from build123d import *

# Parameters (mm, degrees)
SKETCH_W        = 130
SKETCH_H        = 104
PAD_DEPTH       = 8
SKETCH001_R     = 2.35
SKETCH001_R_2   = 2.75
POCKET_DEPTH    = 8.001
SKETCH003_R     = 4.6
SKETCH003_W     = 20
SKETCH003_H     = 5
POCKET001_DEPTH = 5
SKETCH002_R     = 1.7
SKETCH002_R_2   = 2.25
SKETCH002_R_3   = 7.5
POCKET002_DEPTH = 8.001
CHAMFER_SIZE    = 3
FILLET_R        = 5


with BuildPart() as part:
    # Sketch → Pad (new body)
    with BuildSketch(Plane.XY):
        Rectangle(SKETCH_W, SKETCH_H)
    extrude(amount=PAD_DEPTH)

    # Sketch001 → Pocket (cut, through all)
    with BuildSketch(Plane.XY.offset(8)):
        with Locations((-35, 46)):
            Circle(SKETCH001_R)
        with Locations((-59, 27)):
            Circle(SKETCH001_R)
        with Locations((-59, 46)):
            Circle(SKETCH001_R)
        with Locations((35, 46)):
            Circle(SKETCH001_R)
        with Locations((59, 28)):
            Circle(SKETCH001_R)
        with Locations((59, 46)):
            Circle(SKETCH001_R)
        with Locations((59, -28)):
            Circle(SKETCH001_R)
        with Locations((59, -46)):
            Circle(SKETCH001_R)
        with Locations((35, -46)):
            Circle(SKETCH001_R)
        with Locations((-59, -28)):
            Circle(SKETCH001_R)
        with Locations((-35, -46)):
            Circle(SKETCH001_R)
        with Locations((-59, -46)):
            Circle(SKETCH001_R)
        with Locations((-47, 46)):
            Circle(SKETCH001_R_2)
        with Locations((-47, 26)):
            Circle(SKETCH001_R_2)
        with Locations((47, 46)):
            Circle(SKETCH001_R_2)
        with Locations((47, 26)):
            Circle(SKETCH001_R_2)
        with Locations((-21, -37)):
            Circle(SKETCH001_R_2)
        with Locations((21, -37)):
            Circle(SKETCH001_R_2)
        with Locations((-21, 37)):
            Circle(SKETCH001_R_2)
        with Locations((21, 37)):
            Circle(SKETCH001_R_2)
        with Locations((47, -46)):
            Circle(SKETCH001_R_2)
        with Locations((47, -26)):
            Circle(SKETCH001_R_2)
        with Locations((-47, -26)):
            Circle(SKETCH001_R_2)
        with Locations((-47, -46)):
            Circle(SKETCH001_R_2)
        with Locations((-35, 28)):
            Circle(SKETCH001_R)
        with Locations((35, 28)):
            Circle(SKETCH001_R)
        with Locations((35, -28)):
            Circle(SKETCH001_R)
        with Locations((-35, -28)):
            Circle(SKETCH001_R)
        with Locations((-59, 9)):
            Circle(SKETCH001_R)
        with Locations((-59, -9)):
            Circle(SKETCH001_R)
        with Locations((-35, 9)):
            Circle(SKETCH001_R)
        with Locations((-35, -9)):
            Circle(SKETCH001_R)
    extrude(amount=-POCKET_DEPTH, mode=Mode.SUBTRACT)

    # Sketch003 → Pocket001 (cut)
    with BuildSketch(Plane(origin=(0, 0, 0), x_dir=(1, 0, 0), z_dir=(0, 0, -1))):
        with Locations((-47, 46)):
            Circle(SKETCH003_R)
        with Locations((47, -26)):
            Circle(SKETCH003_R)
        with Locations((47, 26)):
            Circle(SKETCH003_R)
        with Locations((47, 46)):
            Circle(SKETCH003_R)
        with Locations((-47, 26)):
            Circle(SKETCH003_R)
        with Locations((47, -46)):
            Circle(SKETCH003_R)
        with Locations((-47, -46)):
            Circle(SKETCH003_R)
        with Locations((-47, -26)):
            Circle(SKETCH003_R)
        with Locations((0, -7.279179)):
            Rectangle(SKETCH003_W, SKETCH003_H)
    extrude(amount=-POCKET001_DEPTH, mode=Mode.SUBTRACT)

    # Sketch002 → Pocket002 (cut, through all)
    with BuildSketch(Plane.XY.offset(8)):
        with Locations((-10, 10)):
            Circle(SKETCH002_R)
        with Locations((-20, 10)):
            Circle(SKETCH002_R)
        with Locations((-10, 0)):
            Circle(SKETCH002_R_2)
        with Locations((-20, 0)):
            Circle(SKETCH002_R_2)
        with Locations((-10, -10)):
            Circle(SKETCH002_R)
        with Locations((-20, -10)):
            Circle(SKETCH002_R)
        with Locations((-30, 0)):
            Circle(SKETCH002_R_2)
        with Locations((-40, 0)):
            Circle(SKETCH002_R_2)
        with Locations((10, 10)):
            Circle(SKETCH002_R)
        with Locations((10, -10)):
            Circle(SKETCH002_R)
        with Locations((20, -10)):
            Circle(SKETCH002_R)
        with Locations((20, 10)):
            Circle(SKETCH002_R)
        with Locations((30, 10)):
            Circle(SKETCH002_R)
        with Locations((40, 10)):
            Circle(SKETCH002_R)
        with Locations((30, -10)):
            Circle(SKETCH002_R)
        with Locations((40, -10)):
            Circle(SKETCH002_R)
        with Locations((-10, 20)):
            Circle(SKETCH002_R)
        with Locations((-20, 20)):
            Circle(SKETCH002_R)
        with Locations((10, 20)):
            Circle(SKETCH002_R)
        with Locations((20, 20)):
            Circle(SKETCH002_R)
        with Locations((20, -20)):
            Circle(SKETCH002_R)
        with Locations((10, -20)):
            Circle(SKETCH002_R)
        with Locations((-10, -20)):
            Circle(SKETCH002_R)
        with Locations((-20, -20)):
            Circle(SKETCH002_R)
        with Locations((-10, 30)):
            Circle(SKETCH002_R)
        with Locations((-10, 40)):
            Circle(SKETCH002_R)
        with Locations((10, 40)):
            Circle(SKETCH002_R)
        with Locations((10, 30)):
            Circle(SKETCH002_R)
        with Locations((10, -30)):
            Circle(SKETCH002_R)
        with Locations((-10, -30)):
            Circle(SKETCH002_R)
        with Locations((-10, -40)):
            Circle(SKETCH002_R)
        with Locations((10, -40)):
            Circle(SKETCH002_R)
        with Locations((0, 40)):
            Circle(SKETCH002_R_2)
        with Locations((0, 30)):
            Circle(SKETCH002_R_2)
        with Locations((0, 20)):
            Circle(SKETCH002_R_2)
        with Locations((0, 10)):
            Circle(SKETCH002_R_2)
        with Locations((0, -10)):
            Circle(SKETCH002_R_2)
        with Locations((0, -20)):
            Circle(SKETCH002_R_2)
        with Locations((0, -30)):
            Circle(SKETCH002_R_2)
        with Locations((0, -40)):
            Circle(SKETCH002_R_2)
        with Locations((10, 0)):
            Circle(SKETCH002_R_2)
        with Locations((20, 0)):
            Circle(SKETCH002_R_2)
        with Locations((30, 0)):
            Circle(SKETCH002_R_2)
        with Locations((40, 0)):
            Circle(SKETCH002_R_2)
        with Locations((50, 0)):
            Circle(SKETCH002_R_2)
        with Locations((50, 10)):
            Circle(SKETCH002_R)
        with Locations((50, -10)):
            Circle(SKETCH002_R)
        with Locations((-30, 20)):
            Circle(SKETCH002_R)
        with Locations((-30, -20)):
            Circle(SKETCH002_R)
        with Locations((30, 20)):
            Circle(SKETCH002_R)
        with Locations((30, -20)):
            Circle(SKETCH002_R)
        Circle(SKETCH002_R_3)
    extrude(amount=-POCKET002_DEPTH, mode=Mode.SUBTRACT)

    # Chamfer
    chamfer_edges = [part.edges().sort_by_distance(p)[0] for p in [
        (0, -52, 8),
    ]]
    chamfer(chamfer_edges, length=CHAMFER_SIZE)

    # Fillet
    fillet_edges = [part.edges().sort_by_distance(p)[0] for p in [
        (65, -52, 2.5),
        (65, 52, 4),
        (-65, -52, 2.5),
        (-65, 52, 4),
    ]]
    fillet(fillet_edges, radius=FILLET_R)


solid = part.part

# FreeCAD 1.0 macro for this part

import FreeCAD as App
import Part
import Sketcher
from FreeCAD import Vector


def edges_at(feature, points):
    """Names of the edges that pass closest to the given points."""
    edges = feature.Shape.Edges
    near = lambda p: min(range(len(edges)), key=lambda i: edges[i].distToShape(Part.Vertex(*p))[0])
    return sorted({f"Edge{near(p) + 1}" for p in points})


def add_polygon(sketch, points):
    """Adds a closed chain of lines whose ends are joined by coincident constraints."""
    first, n = sketch.GeometryCount, len(points)
    for a, b in zip(points, points[1:] + points[:1]):
        sketch.addGeometry(Part.LineSegment(App.Vector(*a, 0), App.Vector(*b, 0)), False)
    for i in range(n):
        sketch.addConstraint(Sketcher.Constraint("Coincident", first + i, 2, first + (i + 1) % n, 1))

doc = App.newDocument("Part")
params = doc.addObject("Spreadsheet::Sheet", "Params")
for row, (alias, value) in enumerate([
    ("sketch1_width", "130 mm"),
    ("sketch1_height", "104 mm"),
    ("pad1_length", "8 mm"),
    ("sketch2_diameter", "4.7 mm"),
    ("sketch2_diameter2", "5.5 mm"),
    ("sketch3_diameter", "9.2 mm"),
    ("sketch3_width", "20 mm"),
    ("sketch3_height", "5 mm"),
    ("pocket2_length", "5 mm"),
    ("sketch4_diameter", "15 mm"),
    ("sketch4_diameter2", "3.4 mm"),
    ("sketch4_diameter3", "4.5 mm"),
    ("chamfer_size", "3 mm"),
    ("fillet_radius", "5 mm"),
], start=1):
    params.set(f"A{row}", alias)
    params.set(f"B{row}", "=" + value)
    params.setAlias(f"B{row}", alias)

body = doc.addObject("PartDesign::Body", "Body")

sketch1 = body.newObject("Sketcher::SketchObject", "Sketch")
sketch1.AttachmentSupport = (doc.getObject("XY_Plane"), [""])
sketch1.MapMode = "FlatFace"
add_polygon(sketch1, [(-65, 52), (-65, -52), (65, -52), (65, 52)])
sketch1.addConstraint([
    Sketcher.Constraint("Vertical", 0),
    Sketcher.Constraint("Horizontal", 1),
    Sketcher.Constraint("Vertical", 2),
    Sketcher.Constraint("Horizontal", 3),
    Sketcher.Constraint("Symmetric", 0, 2, 2, 2, -1, 1),
    Sketcher.Constraint("DistanceX", 1, 1, 1, 2, 130.0),
    Sketcher.Constraint("DistanceY", 0, 2, 0, 1, 104.0),
])
sketch1.setExpression("Constraints[9]", "Params.sketch1_width")
sketch1.setExpression("Constraints[10]", "Params.sketch1_height")
pad1 = body.newObject("PartDesign::Pad", "Pad")
pad1.Profile = sketch1
pad1.setExpression("Length", "Params.pad1_length")

sketch2 = body.newObject("Sketcher::SketchObject", "Sketch001")
sketch2.AttachmentSupport = (doc.getObject("XY_Plane"), [""])
sketch2.MapMode = "FlatFace"
sketch2.AttachmentOffset = App.Placement(Vector(0, 0, 8), App.Rotation())
sketch2.addGeometry([
    Part.Circle(Vector(-35, 46, 0), Vector(0, 0, 1), 2.4),
    Part.Circle(Vector(-59, 27, 0), Vector(0, 0, 1), 2.4),
    Part.Circle(Vector(-59, 46, 0), Vector(0, 0, 1), 2.4),
    Part.Circle(Vector(35, 46, 0), Vector(0, 0, 1), 2.4),
    Part.Circle(Vector(59, 28, 0), Vector(0, 0, 1), 2.4),
    Part.Circle(Vector(59, 46, 0), Vector(0, 0, 1), 2.4),
    Part.Circle(Vector(59, -28, 0), Vector(0, 0, 1), 2.4),
    Part.Circle(Vector(59, -46, 0), Vector(0, 0, 1), 2.4),
    Part.Circle(Vector(35, -46, 0), Vector(0, 0, 1), 2.4),
    Part.Circle(Vector(-59, -28, 0), Vector(0, 0, 1), 2.4),
    Part.Circle(Vector(-35, -46, 0), Vector(0, 0, 1), 2.4),
    Part.Circle(Vector(-59, -46, 0), Vector(0, 0, 1), 2.4),
    Part.Circle(Vector(-47, 46, 0), Vector(0, 0, 1), 2.8),
    Part.Circle(Vector(-47, 26, 0), Vector(0, 0, 1), 2.8),
    Part.Circle(Vector(47, 46, 0), Vector(0, 0, 1), 2.8),
    Part.Circle(Vector(47, 26, 0), Vector(0, 0, 1), 2.8),
    Part.Circle(Vector(-21, -37, 0), Vector(0, 0, 1), 2.8),
    Part.Circle(Vector(21, -37, 0), Vector(0, 0, 1), 2.8),
    Part.Circle(Vector(-21, 37, 0), Vector(0, 0, 1), 2.8),
    Part.Circle(Vector(21, 37, 0), Vector(0, 0, 1), 2.8),
    Part.Circle(Vector(47, -46, 0), Vector(0, 0, 1), 2.8),
    Part.Circle(Vector(47, -26, 0), Vector(0, 0, 1), 2.8),
    Part.Circle(Vector(-47, -26, 0), Vector(0, 0, 1), 2.8),
    Part.Circle(Vector(-47, -46, 0), Vector(0, 0, 1), 2.8),
    Part.Circle(Vector(-35, 28, 0), Vector(0, 0, 1), 2.4),
    Part.Circle(Vector(35, 28, 0), Vector(0, 0, 1), 2.4),
    Part.Circle(Vector(35, -28, 0), Vector(0, 0, 1), 2.4),
    Part.Circle(Vector(-35, -28, 0), Vector(0, 0, 1), 2.4),
    Part.Circle(Vector(-59, 9, 0), Vector(0, 0, 1), 2.4),
    Part.Circle(Vector(-59, -9, 0), Vector(0, 0, 1), 2.4),
    Part.Circle(Vector(-35, 9, 0), Vector(0, 0, 1), 2.4),
    Part.Circle(Vector(-35, -9, 0), Vector(0, 0, 1), 2.4),
], False)
sketch2.addConstraint([
    Sketcher.Constraint("Equal", 0, 1),
    Sketcher.Constraint("Equal", 1, 2),
    Sketcher.Constraint("Equal", 2, 3),
    Sketcher.Constraint("Equal", 3, 4),
    Sketcher.Constraint("Equal", 4, 5),
    Sketcher.Constraint("Equal", 5, 6),
    Sketcher.Constraint("Equal", 6, 7),
    Sketcher.Constraint("Equal", 7, 8),
    Sketcher.Constraint("Equal", 8, 9),
    Sketcher.Constraint("Equal", 9, 10),
    Sketcher.Constraint("Equal", 10, 11),
    Sketcher.Constraint("Equal", 12, 13),
    Sketcher.Constraint("Equal", 13, 14),
    Sketcher.Constraint("Equal", 14, 15),
    Sketcher.Constraint("Equal", 15, 16),
    Sketcher.Constraint("Equal", 16, 17),
    Sketcher.Constraint("Equal", 17, 18),
    Sketcher.Constraint("Equal", 18, 19),
    Sketcher.Constraint("Equal", 19, 20),
    Sketcher.Constraint("Equal", 20, 21),
    Sketcher.Constraint("Equal", 21, 22),
    Sketcher.Constraint("Equal", 22, 23),
    Sketcher.Constraint("Equal", 11, 24),
    Sketcher.Constraint("Equal", 24, 25),
    Sketcher.Constraint("Equal", 25, 26),
    Sketcher.Constraint("Equal", 26, 27),
    Sketcher.Constraint("Equal", 27, 28),
    Sketcher.Constraint("Equal", 28, 29),
    Sketcher.Constraint("Equal", 29, 30),
    Sketcher.Constraint("Equal", 30, 31),
    Sketcher.Constraint("Symmetric", 2, 3, 7, 3, -1, 1),
    Sketcher.Constraint("Symmetric", 0, 3, 8, 3, -1, 1),
    Sketcher.Constraint("Symmetric", 4, 3, 9, 3, -1, 1),
    Sketcher.Constraint("Symmetric", 3, 3, 10, 3, -1, 1),
    Sketcher.Constraint("Symmetric", 5, 3, 11, 3, -1, 1),
    Sketcher.Constraint("Symmetric", 17, 3, 18, 3, -1, 1),
    Sketcher.Constraint("Symmetric", 16, 3, 19, 3, -1, 1),
    Sketcher.Constraint("Symmetric", 12, 3, 20, 3, -1, 1),
    Sketcher.Constraint("Symmetric", 13, 3, 21, 3, -1, 1),
    Sketcher.Constraint("Symmetric", 15, 3, 22, 3, -1, 1),
    Sketcher.Constraint("Symmetric", 14, 3, 23, 3, -1, 1),
    Sketcher.Constraint("Symmetric", 24, 3, 26, 3, -1, 1),
    Sketcher.Constraint("Symmetric", 25, 3, 27, 3, -1, 1),
    Sketcher.Constraint("Symmetric", 0, 3, 3, 3, -2),
    Sketcher.Constraint("Symmetric", 2, 3, 5, 3, -2),
    Sketcher.Constraint("Symmetric", 6, 3, 9, 3, -2),
    Sketcher.Constraint("Symmetric", 12, 3, 14, 3, -2),
    Sketcher.Constraint("Symmetric", 13, 3, 15, 3, -2),
    Sketcher.Constraint("Symmetric", 16, 3, 17, 3, -2),
    Sketcher.Constraint("Symmetric", 24, 3, 25, 3, -2),
    Sketcher.Constraint("Symmetric", 28, 3, 29, 3, -1),
    Sketcher.Constraint("Symmetric", 30, 3, 31, 3, -1),
    Sketcher.Constraint("Horizontal", 0, 3, 2, 3),
    Sketcher.Constraint("Horizontal", 5, 3, 12, 3),
    Sketcher.Constraint("Horizontal", 4, 3, 24, 3),
    Sketcher.Constraint("Horizontal", 28, 3, 30, 3),
    Sketcher.Constraint("Vertical", 1, 3, 2, 3),
    Sketcher.Constraint("Vertical", 4, 3, 5, 3),
    Sketcher.Constraint("Vertical", 12, 3, 13, 3),
    Sketcher.Constraint("Vertical", 10, 3, 24, 3),
    Sketcher.Constraint("Vertical", 11, 3, 28, 3),
    Sketcher.Constraint("Vertical", 27, 3, 30, 3),
    Sketcher.Constraint("Diameter", 0, 4.7),
    Sketcher.Constraint("Diameter", 12, 5.5),
    Sketcher.Constraint("DistanceX", 0, 3, -1, 1, 35.0),
    Sketcher.Constraint("DistanceY", -1, 1, 0, 3, 46.0),
    Sketcher.Constraint("DistanceX", 1, 3, -1, 1, 59.0),
    Sketcher.Constraint("DistanceY", -1, 1, 1, 3, 27.0),
    Sketcher.Constraint("DistanceY", -1, 1, 4, 3, 28.0),
    Sketcher.Constraint("DistanceX", 12, 3, -1, 1, 47.0),
    Sketcher.Constraint("DistanceY", -1, 1, 13, 3, 26.0),
    Sketcher.Constraint("DistanceX", 16, 3, -1, 1, 21.0),
    Sketcher.Constraint("DistanceY", 16, 3, -1, 1, 37.0),
    Sketcher.Constraint("DistanceY", -1, 1, 28, 3, 9.0),
])
sketch2.setExpression("Constraints[62]", "Params.sketch2_diameter")
sketch2.setExpression("Constraints[63]", "Params.sketch2_diameter2")
pocket1 = body.newObject("PartDesign::Pocket", "Pocket")
pocket1.Profile = sketch2
pocket1.Type = "ThroughAll"

sketch3 = body.newObject("Sketcher::SketchObject", "Sketch002")
sketch3.AttachmentSupport = (doc.getObject("XY_Plane"), [""])
sketch3.MapMode = "FlatFace"
sketch3.addGeometry(Part.Circle(Vector(-47, -46, 0), Vector(0, 0, 1), 4.6), False)
sketch3.addGeometry(Part.Circle(Vector(47, 26, 0), Vector(0, 0, 1), 4.6), False)
sketch3.addGeometry(Part.Circle(Vector(47, -26, 0), Vector(0, 0, 1), 4.6), False)
sketch3.addGeometry(Part.Circle(Vector(47, -46, 0), Vector(0, 0, 1), 4.6), False)
sketch3.addGeometry(Part.Circle(Vector(-47, -26, 0), Vector(0, 0, 1), 4.6), False)
sketch3.addGeometry(Part.Circle(Vector(47, 46, 0), Vector(0, 0, 1), 4.6), False)
sketch3.addGeometry(Part.Circle(Vector(-47, 46, 0), Vector(0, 0, 1), 4.6), False)
sketch3.addGeometry(Part.Circle(Vector(-47, 26, 0), Vector(0, 0, 1), 4.6), False)
add_polygon(sketch3, [(-10, 4.8), (-10, 9.8), (10, 9.8), (10, 4.8)])
sketch3.addConstraint([
    Sketcher.Constraint("Vertical", 8),
    Sketcher.Constraint("Horizontal", 9),
    Sketcher.Constraint("Vertical", 10),
    Sketcher.Constraint("Horizontal", 11),
    Sketcher.Constraint("Equal", 0, 1),
    Sketcher.Constraint("Equal", 1, 2),
    Sketcher.Constraint("Equal", 2, 3),
    Sketcher.Constraint("Equal", 3, 4),
    Sketcher.Constraint("Equal", 4, 5),
    Sketcher.Constraint("Equal", 5, 6),
    Sketcher.Constraint("Equal", 6, 7),
    Sketcher.Constraint("Symmetric", 1, 3, 4, 3, -1, 1),
    Sketcher.Constraint("Symmetric", 0, 3, 5, 3, -1, 1),
    Sketcher.Constraint("Symmetric", 3, 3, 6, 3, -1, 1),
    Sketcher.Constraint("Symmetric", 2, 3, 7, 3, -1, 1),
    Sketcher.Constraint("Symmetric", 0, 3, 3, 3, -2),
    Sketcher.Constraint("Symmetric", 2, 3, 4, 3, -2),
    Sketcher.Constraint("Vertical", 2, 3, 3, 3),
    Sketcher.Constraint("Diameter", 0, 9.2),
    Sketcher.Constraint("DistanceX", 9, 1, 9, 2, 20.0),
    Sketcher.Constraint("DistanceY", 8, 1, 8, 2, 5.0),
    Sketcher.Constraint("DistanceX", 0, 3, -1, 1, 47.0),
    Sketcher.Constraint("DistanceY", 0, 3, -1, 1, 46.0),
    Sketcher.Constraint("DistanceY", -1, 1, 1, 3, 26.0),
    Sketcher.Constraint("DistanceX", 8, 2, -1, 1, 10.0),
    Sketcher.Constraint("DistanceY", -1, 1, 8, 2, 9.779179),
])
sketch3.setExpression("Constraints[22]", "Params.sketch3_diameter")
sketch3.setExpression("Constraints[23]", "Params.sketch3_width")
sketch3.setExpression("Constraints[24]", "Params.sketch3_height")
pocket2 = body.newObject("PartDesign::Pocket", "Pocket001")
pocket2.Profile = sketch3
pocket2.setExpression("Length", "Params.pocket2_length")
pocket2.Reversed = True

sketch4 = body.newObject("Sketcher::SketchObject", "Sketch003")
sketch4.AttachmentSupport = (doc.getObject("XY_Plane"), [""])
sketch4.MapMode = "FlatFace"
sketch4.AttachmentOffset = App.Placement(Vector(0, 0, 8), App.Rotation())
sketch4.addGeometry([
    Part.Circle(Vector(-10, 10, 0), Vector(0, 0, 1), 1.7),
    Part.Circle(Vector(-20, 10, 0), Vector(0, 0, 1), 1.7),
    Part.Circle(Vector(-10, 0, 0), Vector(0, 0, 1), 2.2),
    Part.Circle(Vector(-20, 0, 0), Vector(0, 0, 1), 2.2),
    Part.Circle(Vector(-10, -10, 0), Vector(0, 0, 1), 1.7),
    Part.Circle(Vector(-20, -10, 0), Vector(0, 0, 1), 1.7),
    Part.Circle(Vector(-30, 0, 0), Vector(0, 0, 1), 2.2),
    Part.Circle(Vector(-40, 0, 0), Vector(0, 0, 1), 2.2),
    Part.Circle(Vector(10, 10, 0), Vector(0, 0, 1), 1.7),
    Part.Circle(Vector(10, -10, 0), Vector(0, 0, 1), 1.7),
    Part.Circle(Vector(20, -10, 0), Vector(0, 0, 1), 1.7),
    Part.Circle(Vector(20, 10, 0), Vector(0, 0, 1), 1.7),
    Part.Circle(Vector(30, 10, 0), Vector(0, 0, 1), 1.7),
    Part.Circle(Vector(40, 10, 0), Vector(0, 0, 1), 1.7),
    Part.Circle(Vector(30, -10, 0), Vector(0, 0, 1), 1.7),
    Part.Circle(Vector(40, -10, 0), Vector(0, 0, 1), 1.7),
    Part.Circle(Vector(-10, 20, 0), Vector(0, 0, 1), 1.7),
    Part.Circle(Vector(-20, 20, 0), Vector(0, 0, 1), 1.7),
    Part.Circle(Vector(10, 20, 0), Vector(0, 0, 1), 1.7),
    Part.Circle(Vector(20, 20, 0), Vector(0, 0, 1), 1.7),
    Part.Circle(Vector(20, -20, 0), Vector(0, 0, 1), 1.7),
    Part.Circle(Vector(10, -20, 0), Vector(0, 0, 1), 1.7),
    Part.Circle(Vector(-10, -20, 0), Vector(0, 0, 1), 1.7),
    Part.Circle(Vector(-20, -20, 0), Vector(0, 0, 1), 1.7),
    Part.Circle(Vector(-10, 30, 0), Vector(0, 0, 1), 1.7),
    Part.Circle(Vector(-10, 40, 0), Vector(0, 0, 1), 1.7),
    Part.Circle(Vector(10, 40, 0), Vector(0, 0, 1), 1.7),
    Part.Circle(Vector(10, 30, 0), Vector(0, 0, 1), 1.7),
    Part.Circle(Vector(10, -30, 0), Vector(0, 0, 1), 1.7),
    Part.Circle(Vector(-10, -30, 0), Vector(0, 0, 1), 1.7),
    Part.Circle(Vector(-10, -40, 0), Vector(0, 0, 1), 1.7),
    Part.Circle(Vector(10, -40, 0), Vector(0, 0, 1), 1.7),
    Part.Circle(Vector(0, 40, 0), Vector(0, 0, 1), 2.2),
    Part.Circle(Vector(0, 30, 0), Vector(0, 0, 1), 2.2),
    Part.Circle(Vector(0, 20, 0), Vector(0, 0, 1), 2.2),
    Part.Circle(Vector(0, 10, 0), Vector(0, 0, 1), 2.2),
    Part.Circle(Vector(0, -10, 0), Vector(0, 0, 1), 2.2),
    Part.Circle(Vector(0, -20, 0), Vector(0, 0, 1), 2.2),
    Part.Circle(Vector(0, -30, 0), Vector(0, 0, 1), 2.2),
    Part.Circle(Vector(0, -40, 0), Vector(0, 0, 1), 2.2),
    Part.Circle(Vector(10, 0, 0), Vector(0, 0, 1), 2.2),
    Part.Circle(Vector(20, 0, 0), Vector(0, 0, 1), 2.2),
    Part.Circle(Vector(30, 0, 0), Vector(0, 0, 1), 2.2),
    Part.Circle(Vector(40, 0, 0), Vector(0, 0, 1), 2.2),
    Part.Circle(Vector(50, 0, 0), Vector(0, 0, 1), 2.2),
    Part.Circle(Vector(50, 10, 0), Vector(0, 0, 1), 1.7),
    Part.Circle(Vector(50, -10, 0), Vector(0, 0, 1), 1.7),
    Part.Circle(Vector(-30, 20, 0), Vector(0, 0, 1), 1.7),
    Part.Circle(Vector(-30, -20, 0), Vector(0, 0, 1), 1.7),
    Part.Circle(Vector(30, 20, 0), Vector(0, 0, 1), 1.7),
    Part.Circle(Vector(30, -20, 0), Vector(0, 0, 1), 1.7),
    Part.Circle(Vector(0, 0, 0), Vector(0, 0, 1), 7.5),
], False)
sketch4.addConstraint([
    Sketcher.Constraint("Coincident", 51, 3, -1, 1),
    Sketcher.Constraint("Equal", 0, 1),
    Sketcher.Constraint("Equal", 2, 3),
    Sketcher.Constraint("Equal", 1, 4),
    Sketcher.Constraint("Equal", 4, 5),
    Sketcher.Constraint("Equal", 3, 6),
    Sketcher.Constraint("Equal", 6, 7),
    Sketcher.Constraint("Equal", 5, 8),
    Sketcher.Constraint("Equal", 8, 9),
    Sketcher.Constraint("Equal", 9, 10),
    Sketcher.Constraint("Equal", 10, 11),
    Sketcher.Constraint("Equal", 11, 12),
    Sketcher.Constraint("Equal", 12, 13),
    Sketcher.Constraint("Equal", 13, 14),
    Sketcher.Constraint("Equal", 14, 15),
    Sketcher.Constraint("Equal", 15, 16),
    Sketcher.Constraint("Equal", 16, 17),
    Sketcher.Constraint("Equal", 17, 18),
    Sketcher.Constraint("Equal", 18, 19),
    Sketcher.Constraint("Equal", 19, 20),
    Sketcher.Constraint("Equal", 20, 21),
    Sketcher.Constraint("Equal", 21, 22),
    Sketcher.Constraint("Equal", 22, 23),
    Sketcher.Constraint("Equal", 23, 24),
    Sketcher.Constraint("Equal", 24, 25),
    Sketcher.Constraint("Equal", 25, 26),
    Sketcher.Constraint("Equal", 26, 27),
    Sketcher.Constraint("Equal", 27, 28),
    Sketcher.Constraint("Equal", 28, 29),
    Sketcher.Constraint("Equal", 29, 30),
    Sketcher.Constraint("Equal", 30, 31),
    Sketcher.Constraint("Equal", 7, 32),
    Sketcher.Constraint("Equal", 32, 33),
    Sketcher.Constraint("Equal", 33, 34),
    Sketcher.Constraint("Equal", 34, 35),
    Sketcher.Constraint("Equal", 35, 36),
    Sketcher.Constraint("Equal", 36, 37),
    Sketcher.Constraint("Equal", 37, 38),
    Sketcher.Constraint("Equal", 38, 39),
    Sketcher.Constraint("Equal", 39, 40),
    Sketcher.Constraint("Equal", 40, 41),
    Sketcher.Constraint("Equal", 41, 42),
    Sketcher.Constraint("Equal", 42, 43),
    Sketcher.Constraint("Equal", 43, 44),
    Sketcher.Constraint("Equal", 31, 45),
    Sketcher.Constraint("Equal", 45, 46),
    Sketcher.Constraint("Equal", 46, 47),
    Sketcher.Constraint("Equal", 47, 48),
    Sketcher.Constraint("Equal", 48, 49),
    Sketcher.Constraint("Equal", 49, 50),
    Sketcher.Constraint("Symmetric", 4, 3, 8, 3, -1, 1),
    Sketcher.Constraint("Symmetric", 0, 3, 9, 3, -1, 1),
    Sketcher.Constraint("Symmetric", 1, 3, 10, 3, -1, 1),
    Sketcher.Constraint("Symmetric", 5, 3, 11, 3, -1, 1),
    Sketcher.Constraint("Symmetric", 17, 3, 20, 3, -1, 1),
    Sketcher.Constraint("Symmetric", 16, 3, 21, 3, -1, 1),
    Sketcher.Constraint("Symmetric", 18, 3, 22, 3, -1, 1),
    Sketcher.Constraint("Symmetric", 19, 3, 23, 3, -1, 1),
    Sketcher.Constraint("Symmetric", 24, 3, 28, 3, -1, 1),
    Sketcher.Constraint("Symmetric", 27, 3, 29, 3, -1, 1),
    Sketcher.Constraint("Symmetric", 26, 3, 30, 3, -1, 1),
    Sketcher.Constraint("Symmetric", 25, 3, 31, 3, -1, 1),
    Sketcher.Constraint("Symmetric", 35, 3, 36, 3, -1, 1),
    Sketcher.Constraint("Symmetric", 34, 3, 37, 3, -1, 1),
    Sketcher.Constraint("Symmetric", 33, 3, 38, 3, -1, 1),
    Sketcher.Constraint("Symmetric", 32, 3, 39, 3, -1, 1),
    Sketcher.Constraint("Symmetric", 2, 3, 40, 3, -1, 1),
    Sketcher.Constraint("Symmetric", 3, 3, 41, 3, -1, 1),
    Sketcher.Constraint("Symmetric", 6, 3, 42, 3, -1, 1),
    Sketcher.Constraint("Symmetric", 7, 3, 43, 3, -1, 1),
    Sketcher.Constraint("Symmetric", 48, 3, 49, 3, -1, 1),
    Sketcher.Constraint("Symmetric", 47, 3, 50, 3, -1, 1),
    Sketcher.Constraint("Symmetric", 0, 3, 8, 3, -2),
    Sketcher.Constraint("Symmetric", 5, 3, 10, 3, -2),
    Sketcher.Constraint("Symmetric", 16, 3, 18, 3, -2),
    Sketcher.Constraint("Symmetric", 17, 3, 19, 3, -2),
    Sketcher.Constraint("Symmetric", 25, 3, 26, 3, -2),
    Sketcher.Constraint("Symmetric", 24, 3, 27, 3, -2),
    Sketcher.Constraint("Symmetric", 47, 3, 49, 3, -2),
    Sketcher.Constraint("Symmetric", 12, 3, 14, 3, -1),
    Sketcher.Constraint("Symmetric", 13, 3, 15, 3, -1),
    Sketcher.Constraint("Symmetric", 45, 3, 46, 3, -1),
    Sketcher.Constraint("PointOnObject", 2, 3, -1),
    Sketcher.Constraint("PointOnObject", 3, 3, -1),
    Sketcher.Constraint("PointOnObject", 6, 3, -1),
    Sketcher.Constraint("PointOnObject", 7, 3, -1),
    Sketcher.Constraint("PointOnObject", 32, 3, -2),
    Sketcher.Constraint("PointOnObject", 33, 3, -2),
    Sketcher.Constraint("PointOnObject", 34, 3, -2),
    Sketcher.Constraint("PointOnObject", 35, 3, -2),
    Sketcher.Constraint("PointOnObject", 44, 3, -1),
    Sketcher.Constraint("Horizontal", 0, 3, 1, 3),
    Sketcher.Constraint("Horizontal", 11, 3, 12, 3),
    Sketcher.Constraint("Horizontal", 12, 3, 13, 3),
    Sketcher.Constraint("Horizontal", 16, 3, 17, 3),
    Sketcher.Constraint("Horizontal", 26, 3, 32, 3),
    Sketcher.Constraint("Horizontal", 27, 3, 33, 3),
    Sketcher.Constraint("Horizontal", 19, 3, 34, 3),
    Sketcher.Constraint("Horizontal", 13, 3, 35, 3),
    Sketcher.Constraint("Horizontal", 35, 3, 45, 3),
    Sketcher.Constraint("Horizontal", 34, 3, 47, 3),
    Sketcher.Constraint("Vertical", 0, 3, 2, 3),
    Sketcher.Constraint("Vertical", 1, 3, 3, 3),
    Sketcher.Constraint("Vertical", 4, 3, 16, 3),
    Sketcher.Constraint("Vertical", 5, 3, 17, 3),
    Sketcher.Constraint("Vertical", 22, 3, 24, 3),
    Sketcher.Constraint("Vertical", 24, 3, 25, 3),
    Sketcher.Constraint("Vertical", 14, 3, 42, 3),
    Sketcher.Constraint("Vertical", 15, 3, 43, 3),
    Sketcher.Constraint("Vertical", 44, 3, 45, 3),
    Sketcher.Constraint("Vertical", 6, 3, 47, 3),
    Sketcher.Constraint("Diameter", 51, 15.0),
    Sketcher.Constraint("Diameter", 0, 3.4),
    Sketcher.Constraint("Diameter", 2, 4.5),
    Sketcher.Constraint("DistanceX", 0, 3, -1, 1, 10.0),
    Sketcher.Constraint("DistanceY", -1, 1, 0, 3, 10.0),
    Sketcher.Constraint("DistanceX", 1, 3, -1, 1, 20.0),
    Sketcher.Constraint("DistanceX", 6, 3, -1, 1, 30.0),
    Sketcher.Constraint("DistanceX", 7, 3, -1, 1, 40.0),
    Sketcher.Constraint("DistanceY", -1, 1, 16, 3, 20.0),
    Sketcher.Constraint("DistanceY", -1, 1, 24, 3, 30.0),
    Sketcher.Constraint("DistanceY", -1, 1, 25, 3, 40.0),
    Sketcher.Constraint("DistanceX", -1, 1, 44, 3, 50.0),
])
sketch4.setExpression("Constraints[111]", "Params.sketch4_diameter")
sketch4.setExpression("Constraints[112]", "Params.sketch4_diameter2")
sketch4.setExpression("Constraints[113]", "Params.sketch4_diameter3")
pocket3 = body.newObject("PartDesign::Pocket", "Pocket002")
pocket3.Profile = sketch4
pocket3.Type = "ThroughAll"
doc.recompute()

chamfer = body.newObject("PartDesign::Chamfer", "Chamfer")
chamfer.Base = (pocket3, edges_at(pocket3, [(0, -52, 8)]))
chamfer.setExpression("Size", "Params.chamfer_size")
doc.recompute()

fillet = body.newObject("PartDesign::Fillet", "Fillet")
fillet.Base = (chamfer, edges_at(chamfer, [
    (65, -52, 2.5),
    (65, 52, 4),
    (-65, -52, 2.5),
    (-65, 52, 4),
]))
fillet.setExpression("Radius", "Params.fillet_radius")

doc.recompute()
